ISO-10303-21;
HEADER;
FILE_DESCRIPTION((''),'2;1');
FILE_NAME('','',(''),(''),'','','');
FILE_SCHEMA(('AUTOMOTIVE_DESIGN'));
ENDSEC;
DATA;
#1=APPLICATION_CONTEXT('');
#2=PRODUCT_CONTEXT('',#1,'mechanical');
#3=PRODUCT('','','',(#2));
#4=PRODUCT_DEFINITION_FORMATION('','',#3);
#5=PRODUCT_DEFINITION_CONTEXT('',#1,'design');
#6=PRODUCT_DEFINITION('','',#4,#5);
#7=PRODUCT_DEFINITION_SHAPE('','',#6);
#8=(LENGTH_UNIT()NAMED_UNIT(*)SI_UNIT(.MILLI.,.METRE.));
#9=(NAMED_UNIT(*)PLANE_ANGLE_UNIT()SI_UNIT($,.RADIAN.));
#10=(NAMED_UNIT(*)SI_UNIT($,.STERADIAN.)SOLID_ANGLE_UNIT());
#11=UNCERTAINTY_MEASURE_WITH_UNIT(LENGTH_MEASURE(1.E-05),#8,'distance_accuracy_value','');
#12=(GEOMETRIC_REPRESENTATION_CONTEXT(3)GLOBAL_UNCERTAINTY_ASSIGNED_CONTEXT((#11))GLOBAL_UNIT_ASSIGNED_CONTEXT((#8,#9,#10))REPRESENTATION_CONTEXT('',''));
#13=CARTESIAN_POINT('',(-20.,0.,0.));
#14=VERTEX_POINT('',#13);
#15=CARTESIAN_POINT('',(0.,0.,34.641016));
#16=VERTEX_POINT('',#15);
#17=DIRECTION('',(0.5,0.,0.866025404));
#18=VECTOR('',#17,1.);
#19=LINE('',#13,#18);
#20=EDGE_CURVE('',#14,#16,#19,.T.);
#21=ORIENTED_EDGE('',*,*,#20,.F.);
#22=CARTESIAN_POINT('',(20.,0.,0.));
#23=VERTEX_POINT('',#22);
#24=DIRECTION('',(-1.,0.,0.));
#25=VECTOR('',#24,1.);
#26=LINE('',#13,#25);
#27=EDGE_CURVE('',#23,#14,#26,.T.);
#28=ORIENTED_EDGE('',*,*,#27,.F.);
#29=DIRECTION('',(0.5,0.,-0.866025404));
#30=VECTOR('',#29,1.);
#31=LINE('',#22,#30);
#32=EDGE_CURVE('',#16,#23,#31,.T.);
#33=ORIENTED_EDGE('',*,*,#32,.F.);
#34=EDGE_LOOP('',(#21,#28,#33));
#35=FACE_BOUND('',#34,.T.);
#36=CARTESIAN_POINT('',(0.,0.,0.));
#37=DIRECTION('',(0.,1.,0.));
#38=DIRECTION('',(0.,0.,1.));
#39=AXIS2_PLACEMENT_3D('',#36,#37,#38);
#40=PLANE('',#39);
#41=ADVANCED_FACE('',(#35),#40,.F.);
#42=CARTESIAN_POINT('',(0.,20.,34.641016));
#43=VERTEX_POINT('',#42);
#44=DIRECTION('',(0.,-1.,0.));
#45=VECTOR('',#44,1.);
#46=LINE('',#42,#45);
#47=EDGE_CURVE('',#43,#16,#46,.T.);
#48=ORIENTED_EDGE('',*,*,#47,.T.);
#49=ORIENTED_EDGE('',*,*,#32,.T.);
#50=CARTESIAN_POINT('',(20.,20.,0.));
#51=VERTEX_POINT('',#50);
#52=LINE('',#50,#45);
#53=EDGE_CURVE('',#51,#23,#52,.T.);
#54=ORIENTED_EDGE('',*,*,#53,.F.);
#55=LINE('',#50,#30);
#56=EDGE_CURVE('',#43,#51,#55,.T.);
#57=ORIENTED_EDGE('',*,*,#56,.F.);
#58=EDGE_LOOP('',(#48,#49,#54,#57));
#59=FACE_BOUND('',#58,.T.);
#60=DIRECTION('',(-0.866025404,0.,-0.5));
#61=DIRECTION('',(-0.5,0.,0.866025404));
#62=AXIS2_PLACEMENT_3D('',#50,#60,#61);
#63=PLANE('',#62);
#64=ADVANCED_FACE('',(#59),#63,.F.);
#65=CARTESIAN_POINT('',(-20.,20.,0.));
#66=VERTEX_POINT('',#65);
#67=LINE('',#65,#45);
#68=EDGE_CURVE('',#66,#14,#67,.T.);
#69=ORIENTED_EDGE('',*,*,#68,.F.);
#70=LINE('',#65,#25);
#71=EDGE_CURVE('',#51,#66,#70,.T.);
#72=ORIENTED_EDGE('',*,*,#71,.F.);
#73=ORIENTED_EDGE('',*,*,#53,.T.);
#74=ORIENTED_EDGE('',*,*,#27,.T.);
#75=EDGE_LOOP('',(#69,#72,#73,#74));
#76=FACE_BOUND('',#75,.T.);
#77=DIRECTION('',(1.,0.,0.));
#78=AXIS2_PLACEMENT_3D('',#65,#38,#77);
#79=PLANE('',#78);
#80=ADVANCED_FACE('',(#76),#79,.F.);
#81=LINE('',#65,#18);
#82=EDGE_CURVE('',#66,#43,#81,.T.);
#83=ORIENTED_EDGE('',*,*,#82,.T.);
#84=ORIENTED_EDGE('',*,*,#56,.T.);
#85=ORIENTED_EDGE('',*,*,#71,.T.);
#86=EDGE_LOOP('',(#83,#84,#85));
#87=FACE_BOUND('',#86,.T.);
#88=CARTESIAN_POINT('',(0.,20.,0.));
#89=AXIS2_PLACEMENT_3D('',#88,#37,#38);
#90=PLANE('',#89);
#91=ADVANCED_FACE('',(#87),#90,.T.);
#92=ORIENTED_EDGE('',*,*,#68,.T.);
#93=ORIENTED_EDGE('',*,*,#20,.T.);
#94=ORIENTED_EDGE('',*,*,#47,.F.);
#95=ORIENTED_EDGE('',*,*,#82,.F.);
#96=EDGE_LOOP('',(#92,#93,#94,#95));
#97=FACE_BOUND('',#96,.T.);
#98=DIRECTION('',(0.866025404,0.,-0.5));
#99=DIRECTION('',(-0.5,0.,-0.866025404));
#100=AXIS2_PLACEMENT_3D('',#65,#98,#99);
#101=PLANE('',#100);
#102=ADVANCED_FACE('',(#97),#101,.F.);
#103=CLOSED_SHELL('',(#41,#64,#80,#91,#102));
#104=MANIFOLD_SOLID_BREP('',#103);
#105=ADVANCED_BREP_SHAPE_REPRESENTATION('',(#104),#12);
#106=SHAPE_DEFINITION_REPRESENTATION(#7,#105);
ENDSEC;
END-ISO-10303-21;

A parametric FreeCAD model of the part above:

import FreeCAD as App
import Part
import Sketcher
Q = App.Units.Quantity

doc = App.newDocument("Part")
body = doc.addObject("PartDesign::Body", "Body")

# Sketch on XZ plane
sketch1 = body.newObject("Sketcher::SketchObject", "Sketch")
sketch1.AttachmentSupport = (doc.getObject("XZ_Plane"), [""])
sketch1.MapMode = "FlatFace"
sketch1.addGeometry(Part.LineSegment(App.Vector(20, 0, 0), App.Vector(-20, 0, 0)), False)
sketch1.addGeometry(Part.LineSegment(App.Vector(-20, 0, 0), App.Vector(0, 35, 0)), False)
sketch1.addGeometry(Part.LineSegment(App.Vector(0, 35, 0), App.Vector(20, 0, 0)), False)
sketch1.addConstraint(Sketcher.Constraint("Coincident", 0, 2, 1, 1))
sketch1.addConstraint(Sketcher.Constraint("Coincident", 1, 2, 2, 1))
sketch1.addConstraint(Sketcher.Constraint("Coincident", 2, 2, 0, 1))
sketch1.addConstraint(Sketcher.Constraint("Horizontal", 0))
sketch1.addConstraint(Sketcher.Constraint("Symmetric", 0, 2, 2, 2, -1, 1))
sketch1.addConstraint(Sketcher.Constraint("PointOnObject", 1, 2, -2))
sketch1.addConstraint(Sketcher.Constraint("DistanceX", 0, 2, 0, 1, Q("40 mm")))
sketch1.addConstraint(Sketcher.Constraint("Angle", 1, Q("60 deg")))
pad1 = body.newObject("PartDesign::Pad", "Pad")
pad1.Profile = sketch1
pad1.Length = 20
pad1.Reversed = True

doc.recompute()
